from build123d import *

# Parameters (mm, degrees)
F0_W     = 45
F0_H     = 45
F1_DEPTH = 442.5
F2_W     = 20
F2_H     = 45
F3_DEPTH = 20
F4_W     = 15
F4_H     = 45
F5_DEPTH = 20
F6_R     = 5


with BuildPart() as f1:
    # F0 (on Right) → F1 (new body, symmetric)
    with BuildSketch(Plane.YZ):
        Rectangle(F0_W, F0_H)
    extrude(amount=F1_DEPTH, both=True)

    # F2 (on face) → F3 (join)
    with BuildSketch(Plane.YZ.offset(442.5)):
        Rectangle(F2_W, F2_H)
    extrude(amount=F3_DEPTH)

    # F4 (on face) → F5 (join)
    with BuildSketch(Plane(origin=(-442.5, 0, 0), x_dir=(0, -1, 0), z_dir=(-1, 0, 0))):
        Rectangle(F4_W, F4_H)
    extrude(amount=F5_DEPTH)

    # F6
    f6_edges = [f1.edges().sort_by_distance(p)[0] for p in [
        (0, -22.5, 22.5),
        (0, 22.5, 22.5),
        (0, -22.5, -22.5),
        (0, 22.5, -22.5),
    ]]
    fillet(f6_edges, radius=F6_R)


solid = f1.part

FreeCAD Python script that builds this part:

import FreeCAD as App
import Part
import Sketcher
from FreeCAD import Vector


def edges_at(feature, points):
    """Names of the edges that pass closest to the given points."""
    edges = feature.Shape.Edges
    near = lambda p: min(range(len(edges)), key=lambda i: edges[i].distToShape(Part.Vertex(*p))[0])
    return sorted({f"Edge{near(p) + 1}" for p in points})

doc = App.newDocument("Part")
params = doc.addObject("Spreadsheet::Sheet", "Params")
for row, (alias, value) in enumerate([
    ("sketch1_width", "45 mm"),
    ("pad1_length", "885 mm"),
    ("sketch2_width", "20 mm"),
    ("sketch2_height", "45 mm"),
    ("pad2_length", "20 mm"),
    ("sketch3_width", "15 mm"),
    ("sketch3_height", "45 mm"),
    ("pad3_length", "20 mm"),
    ("fillet_radius", "5 mm"),
], start=1):
    params.set(f"A{row}", alias)
    params.set(f"B{row}", "=" + value)
    params.setAlias(f"B{row}", alias)

body = doc.addObject("PartDesign::Body", "Body")

# Sketch on YZ plane
sketch1 = doc.addObject("Sketcher::SketchObject", "Sketch")
body.addObject(sketch1)
sketch1.AttachmentSupport = (doc.YZ_Plane, [""])
sketch1.MapMode = "FlatFace"
sketch1.addGeometry([
    Part.LineSegment(Vector(-22.5, 22.5, 0), Vector(-22.5, -22.5, 0)),
    Part.LineSegment(Vector(-22.5, -22.5, 0), Vector(22.5, -22.5, 0)),
    Part.LineSegment(Vector(22.5, -22.5, 0), Vector(22.5, 22.5, 0)),
    Part.LineSegment(Vector(22.5, 22.5, 0), Vector(-22.5, 22.5, 0)),
], False)
sketch1.addConstraint([
    Sketcher.Constraint("Coincident", 0, 2, 1, 1),
    Sketcher.Constraint("Coincident", 1, 2, 2, 1),
    Sketcher.Constraint("Coincident", 2, 2, 3, 1),
    Sketcher.Constraint("Coincident", 3, 2, 0, 1),
    Sketcher.Constraint("Vertical", 0),
    Sketcher.Constraint("Horizontal", 1),
    Sketcher.Constraint("Vertical", 2),
    Sketcher.Constraint("Horizontal", 3),
    Sketcher.Constraint("Symmetric", 0, 2, 2, 2, -1, 1),
    Sketcher.Constraint("Equal", 3, 0),
    Sketcher.Constraint("DistanceX", 1, 1, 1, 2, 45.0),
])
sketch1.setExpression("Constraints[10]", "Params.sketch1_width")
pad1 = doc.addObject("PartDesign::Pad", "Pad")
body.addObject(pad1)
pad1.Profile = sketch1
pad1.setExpression("Length", "Params.pad1_length")
pad1.Midplane = True

# Sketch on YZ plane
sketch2 = doc.addObject("Sketcher::SketchObject", "Sketch001")
body.addObject(sketch2)
sketch2.AttachmentSupport = (doc.YZ_Plane, [""])
sketch2.MapMode = "FlatFace"
sketch2.AttachmentOffset = App.Placement(Vector(0, 0, 442.5), App.Rotation())
sketch2.addGeometry([
    Part.LineSegment(Vector(-10, 22.5, 0), Vector(-10, -22.5, 0)),
    Part.LineSegment(Vector(-10, -22.5, 0), Vector(10, -22.5, 0)),
    Part.LineSegment(Vector(10, -22.5, 0), Vector(10, 22.5, 0)),
    Part.LineSegment(Vector(10, 22.5, 0), Vector(-10, 22.5, 0)),
], False)
sketch2.addConstraint([
    Sketcher.Constraint("Coincident", 0, 2, 1, 1),
    Sketcher.Constraint("Coincident", 1, 2, 2, 1),
    Sketcher.Constraint("Coincident", 2, 2, 3, 1),
    Sketcher.Constraint("Coincident", 3, 2, 0, 1),
    Sketcher.Constraint("Vertical", 0),
    Sketcher.Constraint("Horizontal", 1),
    Sketcher.Constraint("Vertical", 2),
    Sketcher.Constraint("Horizontal", 3),
    Sketcher.Constraint("Symmetric", 0, 2, 2, 2, -1, 1),
    Sketcher.Constraint("DistanceX", 1, 1, 1, 2, 20.0),
    Sketcher.Constraint("DistanceY", 0, 2, 0, 1, 45.0),
])
sketch2.setExpression("Constraints[9]", "Params.sketch2_width")
sketch2.setExpression("Constraints[10]", "Params.sketch2_height")
pad2 = doc.addObject("PartDesign::Pad", "Pad001")
body.addObject(pad2)
pad2.Profile = sketch2
pad2.setExpression("Length", "Params.pad2_length")

# Sketch on YZ plane
sketch3 = doc.addObject("Sketcher::SketchObject", "Sketch002")
body.addObject(sketch3)
sketch3.AttachmentSupport = (doc.YZ_Plane, [""])
sketch3.MapMode = "FlatFace"
sketch3.AttachmentOffset = App.Placement(Vector(0, 0, -442.5), App.Rotation())
sketch3.addGeometry([
    Part.LineSegment(Vector(7.5, 22.5, 0), Vector(7.5, -22.5, 0)),
    Part.LineSegment(Vector(7.5, -22.5, 0), Vector(-7.5, -22.5, 0)),
    Part.LineSegment(Vector(-7.5, -22.5, 0), Vector(-7.5, 22.5, 0)),
    Part.LineSegment(Vector(-7.5, 22.5, 0), Vector(7.5, 22.5, 0)),
], False)
sketch3.addConstraint([
    Sketcher.Constraint("Coincident", 0, 2, 1, 1),
    Sketcher.Constraint("Coincident", 1, 2, 2, 1),
    Sketcher.Constraint("Coincident", 2, 2, 3, 1),
    Sketcher.Constraint("Coincident", 3, 2, 0, 1),
    Sketcher.Constraint("Vertical", 0),
    Sketcher.Constraint("Horizontal", 1),
    Sketcher.Constraint("Vertical", 2),
    Sketcher.Constraint("Horizontal", 3),
    Sketcher.Constraint("Symmetric", 0, 2, 2, 2, -1, 1),
    Sketcher.Constraint("DistanceX", 1, 2, 1, 1, 15.0),
    Sketcher.Constraint("DistanceY", 0, 2, 0, 1, 45.0),
])
sketch3.setExpression("Constraints[9]", "Params.sketch3_width")
sketch3.setExpression("Constraints[10]", "Params.sketch3_height")
pad3 = doc.addObject("PartDesign::Pad", "Pad002")
body.addObject(pad3)
pad3.Profile = sketch3
pad3.setExpression("Length", "Params.pad3_length")
pad3.Reversed = True
doc.recompute()

fillet = doc.addObject("PartDesign::Fillet", "Fillet")
body.addObject(fillet)
fillet.Base = (pad3, edges_at(pad3, [
    (0, -22.5, 22.5),
    (0, 22.5, 22.5),
    (0, -22.5, -22.5),
    (0, 22.5, -22.5),
]))
fillet.setExpression("Radius", "Params.fillet_radius")

doc.recompute()
